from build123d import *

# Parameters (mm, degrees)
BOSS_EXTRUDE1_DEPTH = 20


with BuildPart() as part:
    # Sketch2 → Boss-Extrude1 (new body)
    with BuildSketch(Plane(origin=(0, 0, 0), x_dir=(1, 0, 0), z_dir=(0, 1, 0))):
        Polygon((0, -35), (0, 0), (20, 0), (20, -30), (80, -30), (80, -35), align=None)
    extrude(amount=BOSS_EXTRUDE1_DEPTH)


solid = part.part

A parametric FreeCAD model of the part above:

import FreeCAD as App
import Part
import Sketcher
from FreeCAD import Vector
Q = App.Units.Quantity


def add_polygon(sketch, points):
    """Adds a closed chain of lines whose ends are joined by coincident constraints."""
    first, n = sketch.GeometryCount, len(points)
    for a, b in zip(points, points[1:] + points[:1]):
        sketch.addGeometry(Part.LineSegment(App.Vector(*a, 0), App.Vector(*b, 0)), False)
    for i in range(n):
        sketch.addConstraint(Sketcher.Constraint("Coincident", first + i, 2, first + (i + 1) % n, 1))

doc = App.newDocument("Part")
body = doc.addObject("PartDesign::Body", "Body")

sketch1 = body.newObject("Sketcher::SketchObject", "Sketch")
sketch1.AttachmentSupport = (doc.getObject("XZ_Plane"), [""])
sketch1.MapMode = "FlatFace"
add_polygon(sketch1, [(0, 0), (0, 35), (80, 35), (80, 30), (20, 30), (20, 0)])
sketch1.addConstraint([
    Sketcher.Constraint("Vertical", 0),
    Sketcher.Constraint("Horizontal", 1),
    Sketcher.Constraint("Vertical", 2),
    Sketcher.Constraint("Horizontal", 3),
    Sketcher.Constraint("Vertical", 4),
    Sketcher.Constraint("Horizontal", 5),
    Sketcher.Constraint("Coincident", 5, 2, -1, 1),
    Sketcher.Constraint("DistanceX", 1, 1, 1, 2, Q("80 mm")),
    Sketcher.Constraint("DistanceX", 3, 2, 3, 1, Q("60 mm")),
    Sketcher.Constraint("DistanceY", 0, 1, 0, 2, Q("35 mm")),
    Sketcher.Constraint("DistanceY", 2, 2, 2, 1, Q("5 mm")),
])
pad1 = body.newObject("PartDesign::Pad", "Pad")
pad1.Profile = sketch1
pad1.Length = 20
pad1.Reversed = True

doc.recompute()
